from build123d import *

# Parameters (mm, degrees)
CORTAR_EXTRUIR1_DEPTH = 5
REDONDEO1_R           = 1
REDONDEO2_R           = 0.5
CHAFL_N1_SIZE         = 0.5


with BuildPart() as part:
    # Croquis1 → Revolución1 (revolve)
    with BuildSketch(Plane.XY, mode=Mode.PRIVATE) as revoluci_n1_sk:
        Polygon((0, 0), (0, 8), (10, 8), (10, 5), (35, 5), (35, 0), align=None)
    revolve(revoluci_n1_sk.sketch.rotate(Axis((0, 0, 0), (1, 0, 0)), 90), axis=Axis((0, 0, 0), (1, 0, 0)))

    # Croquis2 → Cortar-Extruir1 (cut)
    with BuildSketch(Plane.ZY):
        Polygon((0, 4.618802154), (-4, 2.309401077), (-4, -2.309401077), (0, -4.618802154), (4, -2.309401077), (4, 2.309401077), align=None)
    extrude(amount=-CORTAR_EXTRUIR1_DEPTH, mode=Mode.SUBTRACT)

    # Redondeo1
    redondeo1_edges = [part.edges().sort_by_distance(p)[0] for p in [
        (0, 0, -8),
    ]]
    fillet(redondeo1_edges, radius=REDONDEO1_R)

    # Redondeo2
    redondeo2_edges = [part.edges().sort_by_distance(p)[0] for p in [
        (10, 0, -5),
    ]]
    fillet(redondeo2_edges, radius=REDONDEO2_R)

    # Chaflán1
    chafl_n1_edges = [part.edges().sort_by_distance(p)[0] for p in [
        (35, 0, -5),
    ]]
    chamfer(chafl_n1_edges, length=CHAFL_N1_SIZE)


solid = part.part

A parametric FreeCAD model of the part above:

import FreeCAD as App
import Part
import Sketcher

V = App.Vector
Q = App.Units.Quantity


def edges_at(feature, points):
    """Names of the edges that pass closest to the given points."""
    edges = feature.Shape.Edges
    near = lambda p: min(range(len(edges)), key=lambda i: edges[i].distToShape(Part.Vertex(*p))[0])
    return sorted({f"Edge{near(p) + 1}" for p in points})


def add_polygon(sketch, points):
    """Adds a closed chain of lines whose ends are joined by coincident constraints."""
    first, n = sketch.GeometryCount, len(points)
    for a, b in zip(points, points[1:] + points[:1]):
        sketch.addGeometry(Part.LineSegment(App.Vector(*a, 0), App.Vector(*b, 0)), False)
    for i in range(n):
        sketch.addConstraint(Sketcher.Constraint("Coincident", first + i, 2, first + (i + 1) % n, 1))

doc = App.newDocument("Part")
body = doc.addObject("PartDesign::Body", "Body")

sketch1 = body.newObject("Sketcher::SketchObject", "Sketch")
sketch1.AttachmentSupport = (doc.getObject("XY_Plane"), [""])
sketch1.MapMode = "FlatFace"
add_polygon(sketch1, [(0, 8), (0, 0), (35, 0), (35, 5), (10, 5), (10, 8)])
sketch1.addConstraint([
    Sketcher.Constraint("Vertical", 0),
    Sketcher.Constraint("Horizontal", 1),
    Sketcher.Constraint("Vertical", 2),
    Sketcher.Constraint("Horizontal", 3),
    Sketcher.Constraint("Vertical", 4),
    Sketcher.Constraint("Horizontal", 5),
    Sketcher.Constraint("Coincident", 0, 2, -1, 1),
    Sketcher.Constraint("DistanceX", 1, 1, 1, 2, 35.0),
    Sketcher.Constraint("DistanceX", 3, 2, 3, 1, 25.0),
    Sketcher.Constraint("DistanceY", 0, 2, 0, 1, 8.0),
    Sketcher.Constraint("DistanceY", 2, 1, 2, 2, 5.0),
])
revolution = body.newObject("PartDesign::Revolution", "Revolution")
revolution.Profile = sketch1
revolution.ReferenceAxis = (sketch1, ["H_Axis"])
revolution.Angle = 360

sketch2 = body.newObject("Sketcher::SketchObject", "Sketch001")
sketch2.AttachmentSupport = (doc.getObject("YZ_Plane"), [""])
sketch2.MapMode = "FlatFace"
add_polygon(sketch2, [(4.6, 0), (2.3, -4), (-2.3, -4), (-4.6, 0), (-2.3, 4), (2.3, 4)])
sketch2.addConstraint([
    Sketcher.Constraint("Horizontal", 1),
    Sketcher.Constraint("Horizontal", 4),
    Sketcher.Constraint("Symmetric", 0, 2, 3, 2, -1, 1),
    Sketcher.Constraint("Symmetric", 2, 2, 5, 2, -1, 1),
    Sketcher.Constraint("PointOnObject", 2, 2, -1),
    Sketcher.Constraint("Parallel", 2, 5),
    Sketcher.Constraint("Vertical", 1, 2, 3, 2),
    Sketcher.Constraint("Angle", 0, Q("-120 deg")),
    Sketcher.Constraint("DistanceY", 0, 2, -1, 1, 4.0),
    Sketcher.Constraint("DistanceX", -1, 1, 0, 2, 2.309401),
])
pocket1 = body.newObject("PartDesign::Pocket", "Pocket")
pocket1.Profile = sketch2
pocket1.Length = 5
pocket1.Reversed = True
doc.recompute()

fillet = body.newObject("PartDesign::Fillet", "Fillet")
fillet.Base = (pocket1, edges_at(pocket1, [(0, 0, -8)]))
fillet.Radius = 1
doc.recompute()

fillet2 = body.newObject("PartDesign::Fillet", "Fillet001")
fillet2.Base = (fillet, edges_at(fillet, [(10, 0, -5)]))
fillet2.Radius = 0.5
doc.recompute()

chamfer = body.newObject("PartDesign::Chamfer", "Chamfer")
chamfer.Base = (fillet2, edges_at(fillet2, [(35, 0, -5)]))
chamfer.Size = 0.5

doc.recompute()
